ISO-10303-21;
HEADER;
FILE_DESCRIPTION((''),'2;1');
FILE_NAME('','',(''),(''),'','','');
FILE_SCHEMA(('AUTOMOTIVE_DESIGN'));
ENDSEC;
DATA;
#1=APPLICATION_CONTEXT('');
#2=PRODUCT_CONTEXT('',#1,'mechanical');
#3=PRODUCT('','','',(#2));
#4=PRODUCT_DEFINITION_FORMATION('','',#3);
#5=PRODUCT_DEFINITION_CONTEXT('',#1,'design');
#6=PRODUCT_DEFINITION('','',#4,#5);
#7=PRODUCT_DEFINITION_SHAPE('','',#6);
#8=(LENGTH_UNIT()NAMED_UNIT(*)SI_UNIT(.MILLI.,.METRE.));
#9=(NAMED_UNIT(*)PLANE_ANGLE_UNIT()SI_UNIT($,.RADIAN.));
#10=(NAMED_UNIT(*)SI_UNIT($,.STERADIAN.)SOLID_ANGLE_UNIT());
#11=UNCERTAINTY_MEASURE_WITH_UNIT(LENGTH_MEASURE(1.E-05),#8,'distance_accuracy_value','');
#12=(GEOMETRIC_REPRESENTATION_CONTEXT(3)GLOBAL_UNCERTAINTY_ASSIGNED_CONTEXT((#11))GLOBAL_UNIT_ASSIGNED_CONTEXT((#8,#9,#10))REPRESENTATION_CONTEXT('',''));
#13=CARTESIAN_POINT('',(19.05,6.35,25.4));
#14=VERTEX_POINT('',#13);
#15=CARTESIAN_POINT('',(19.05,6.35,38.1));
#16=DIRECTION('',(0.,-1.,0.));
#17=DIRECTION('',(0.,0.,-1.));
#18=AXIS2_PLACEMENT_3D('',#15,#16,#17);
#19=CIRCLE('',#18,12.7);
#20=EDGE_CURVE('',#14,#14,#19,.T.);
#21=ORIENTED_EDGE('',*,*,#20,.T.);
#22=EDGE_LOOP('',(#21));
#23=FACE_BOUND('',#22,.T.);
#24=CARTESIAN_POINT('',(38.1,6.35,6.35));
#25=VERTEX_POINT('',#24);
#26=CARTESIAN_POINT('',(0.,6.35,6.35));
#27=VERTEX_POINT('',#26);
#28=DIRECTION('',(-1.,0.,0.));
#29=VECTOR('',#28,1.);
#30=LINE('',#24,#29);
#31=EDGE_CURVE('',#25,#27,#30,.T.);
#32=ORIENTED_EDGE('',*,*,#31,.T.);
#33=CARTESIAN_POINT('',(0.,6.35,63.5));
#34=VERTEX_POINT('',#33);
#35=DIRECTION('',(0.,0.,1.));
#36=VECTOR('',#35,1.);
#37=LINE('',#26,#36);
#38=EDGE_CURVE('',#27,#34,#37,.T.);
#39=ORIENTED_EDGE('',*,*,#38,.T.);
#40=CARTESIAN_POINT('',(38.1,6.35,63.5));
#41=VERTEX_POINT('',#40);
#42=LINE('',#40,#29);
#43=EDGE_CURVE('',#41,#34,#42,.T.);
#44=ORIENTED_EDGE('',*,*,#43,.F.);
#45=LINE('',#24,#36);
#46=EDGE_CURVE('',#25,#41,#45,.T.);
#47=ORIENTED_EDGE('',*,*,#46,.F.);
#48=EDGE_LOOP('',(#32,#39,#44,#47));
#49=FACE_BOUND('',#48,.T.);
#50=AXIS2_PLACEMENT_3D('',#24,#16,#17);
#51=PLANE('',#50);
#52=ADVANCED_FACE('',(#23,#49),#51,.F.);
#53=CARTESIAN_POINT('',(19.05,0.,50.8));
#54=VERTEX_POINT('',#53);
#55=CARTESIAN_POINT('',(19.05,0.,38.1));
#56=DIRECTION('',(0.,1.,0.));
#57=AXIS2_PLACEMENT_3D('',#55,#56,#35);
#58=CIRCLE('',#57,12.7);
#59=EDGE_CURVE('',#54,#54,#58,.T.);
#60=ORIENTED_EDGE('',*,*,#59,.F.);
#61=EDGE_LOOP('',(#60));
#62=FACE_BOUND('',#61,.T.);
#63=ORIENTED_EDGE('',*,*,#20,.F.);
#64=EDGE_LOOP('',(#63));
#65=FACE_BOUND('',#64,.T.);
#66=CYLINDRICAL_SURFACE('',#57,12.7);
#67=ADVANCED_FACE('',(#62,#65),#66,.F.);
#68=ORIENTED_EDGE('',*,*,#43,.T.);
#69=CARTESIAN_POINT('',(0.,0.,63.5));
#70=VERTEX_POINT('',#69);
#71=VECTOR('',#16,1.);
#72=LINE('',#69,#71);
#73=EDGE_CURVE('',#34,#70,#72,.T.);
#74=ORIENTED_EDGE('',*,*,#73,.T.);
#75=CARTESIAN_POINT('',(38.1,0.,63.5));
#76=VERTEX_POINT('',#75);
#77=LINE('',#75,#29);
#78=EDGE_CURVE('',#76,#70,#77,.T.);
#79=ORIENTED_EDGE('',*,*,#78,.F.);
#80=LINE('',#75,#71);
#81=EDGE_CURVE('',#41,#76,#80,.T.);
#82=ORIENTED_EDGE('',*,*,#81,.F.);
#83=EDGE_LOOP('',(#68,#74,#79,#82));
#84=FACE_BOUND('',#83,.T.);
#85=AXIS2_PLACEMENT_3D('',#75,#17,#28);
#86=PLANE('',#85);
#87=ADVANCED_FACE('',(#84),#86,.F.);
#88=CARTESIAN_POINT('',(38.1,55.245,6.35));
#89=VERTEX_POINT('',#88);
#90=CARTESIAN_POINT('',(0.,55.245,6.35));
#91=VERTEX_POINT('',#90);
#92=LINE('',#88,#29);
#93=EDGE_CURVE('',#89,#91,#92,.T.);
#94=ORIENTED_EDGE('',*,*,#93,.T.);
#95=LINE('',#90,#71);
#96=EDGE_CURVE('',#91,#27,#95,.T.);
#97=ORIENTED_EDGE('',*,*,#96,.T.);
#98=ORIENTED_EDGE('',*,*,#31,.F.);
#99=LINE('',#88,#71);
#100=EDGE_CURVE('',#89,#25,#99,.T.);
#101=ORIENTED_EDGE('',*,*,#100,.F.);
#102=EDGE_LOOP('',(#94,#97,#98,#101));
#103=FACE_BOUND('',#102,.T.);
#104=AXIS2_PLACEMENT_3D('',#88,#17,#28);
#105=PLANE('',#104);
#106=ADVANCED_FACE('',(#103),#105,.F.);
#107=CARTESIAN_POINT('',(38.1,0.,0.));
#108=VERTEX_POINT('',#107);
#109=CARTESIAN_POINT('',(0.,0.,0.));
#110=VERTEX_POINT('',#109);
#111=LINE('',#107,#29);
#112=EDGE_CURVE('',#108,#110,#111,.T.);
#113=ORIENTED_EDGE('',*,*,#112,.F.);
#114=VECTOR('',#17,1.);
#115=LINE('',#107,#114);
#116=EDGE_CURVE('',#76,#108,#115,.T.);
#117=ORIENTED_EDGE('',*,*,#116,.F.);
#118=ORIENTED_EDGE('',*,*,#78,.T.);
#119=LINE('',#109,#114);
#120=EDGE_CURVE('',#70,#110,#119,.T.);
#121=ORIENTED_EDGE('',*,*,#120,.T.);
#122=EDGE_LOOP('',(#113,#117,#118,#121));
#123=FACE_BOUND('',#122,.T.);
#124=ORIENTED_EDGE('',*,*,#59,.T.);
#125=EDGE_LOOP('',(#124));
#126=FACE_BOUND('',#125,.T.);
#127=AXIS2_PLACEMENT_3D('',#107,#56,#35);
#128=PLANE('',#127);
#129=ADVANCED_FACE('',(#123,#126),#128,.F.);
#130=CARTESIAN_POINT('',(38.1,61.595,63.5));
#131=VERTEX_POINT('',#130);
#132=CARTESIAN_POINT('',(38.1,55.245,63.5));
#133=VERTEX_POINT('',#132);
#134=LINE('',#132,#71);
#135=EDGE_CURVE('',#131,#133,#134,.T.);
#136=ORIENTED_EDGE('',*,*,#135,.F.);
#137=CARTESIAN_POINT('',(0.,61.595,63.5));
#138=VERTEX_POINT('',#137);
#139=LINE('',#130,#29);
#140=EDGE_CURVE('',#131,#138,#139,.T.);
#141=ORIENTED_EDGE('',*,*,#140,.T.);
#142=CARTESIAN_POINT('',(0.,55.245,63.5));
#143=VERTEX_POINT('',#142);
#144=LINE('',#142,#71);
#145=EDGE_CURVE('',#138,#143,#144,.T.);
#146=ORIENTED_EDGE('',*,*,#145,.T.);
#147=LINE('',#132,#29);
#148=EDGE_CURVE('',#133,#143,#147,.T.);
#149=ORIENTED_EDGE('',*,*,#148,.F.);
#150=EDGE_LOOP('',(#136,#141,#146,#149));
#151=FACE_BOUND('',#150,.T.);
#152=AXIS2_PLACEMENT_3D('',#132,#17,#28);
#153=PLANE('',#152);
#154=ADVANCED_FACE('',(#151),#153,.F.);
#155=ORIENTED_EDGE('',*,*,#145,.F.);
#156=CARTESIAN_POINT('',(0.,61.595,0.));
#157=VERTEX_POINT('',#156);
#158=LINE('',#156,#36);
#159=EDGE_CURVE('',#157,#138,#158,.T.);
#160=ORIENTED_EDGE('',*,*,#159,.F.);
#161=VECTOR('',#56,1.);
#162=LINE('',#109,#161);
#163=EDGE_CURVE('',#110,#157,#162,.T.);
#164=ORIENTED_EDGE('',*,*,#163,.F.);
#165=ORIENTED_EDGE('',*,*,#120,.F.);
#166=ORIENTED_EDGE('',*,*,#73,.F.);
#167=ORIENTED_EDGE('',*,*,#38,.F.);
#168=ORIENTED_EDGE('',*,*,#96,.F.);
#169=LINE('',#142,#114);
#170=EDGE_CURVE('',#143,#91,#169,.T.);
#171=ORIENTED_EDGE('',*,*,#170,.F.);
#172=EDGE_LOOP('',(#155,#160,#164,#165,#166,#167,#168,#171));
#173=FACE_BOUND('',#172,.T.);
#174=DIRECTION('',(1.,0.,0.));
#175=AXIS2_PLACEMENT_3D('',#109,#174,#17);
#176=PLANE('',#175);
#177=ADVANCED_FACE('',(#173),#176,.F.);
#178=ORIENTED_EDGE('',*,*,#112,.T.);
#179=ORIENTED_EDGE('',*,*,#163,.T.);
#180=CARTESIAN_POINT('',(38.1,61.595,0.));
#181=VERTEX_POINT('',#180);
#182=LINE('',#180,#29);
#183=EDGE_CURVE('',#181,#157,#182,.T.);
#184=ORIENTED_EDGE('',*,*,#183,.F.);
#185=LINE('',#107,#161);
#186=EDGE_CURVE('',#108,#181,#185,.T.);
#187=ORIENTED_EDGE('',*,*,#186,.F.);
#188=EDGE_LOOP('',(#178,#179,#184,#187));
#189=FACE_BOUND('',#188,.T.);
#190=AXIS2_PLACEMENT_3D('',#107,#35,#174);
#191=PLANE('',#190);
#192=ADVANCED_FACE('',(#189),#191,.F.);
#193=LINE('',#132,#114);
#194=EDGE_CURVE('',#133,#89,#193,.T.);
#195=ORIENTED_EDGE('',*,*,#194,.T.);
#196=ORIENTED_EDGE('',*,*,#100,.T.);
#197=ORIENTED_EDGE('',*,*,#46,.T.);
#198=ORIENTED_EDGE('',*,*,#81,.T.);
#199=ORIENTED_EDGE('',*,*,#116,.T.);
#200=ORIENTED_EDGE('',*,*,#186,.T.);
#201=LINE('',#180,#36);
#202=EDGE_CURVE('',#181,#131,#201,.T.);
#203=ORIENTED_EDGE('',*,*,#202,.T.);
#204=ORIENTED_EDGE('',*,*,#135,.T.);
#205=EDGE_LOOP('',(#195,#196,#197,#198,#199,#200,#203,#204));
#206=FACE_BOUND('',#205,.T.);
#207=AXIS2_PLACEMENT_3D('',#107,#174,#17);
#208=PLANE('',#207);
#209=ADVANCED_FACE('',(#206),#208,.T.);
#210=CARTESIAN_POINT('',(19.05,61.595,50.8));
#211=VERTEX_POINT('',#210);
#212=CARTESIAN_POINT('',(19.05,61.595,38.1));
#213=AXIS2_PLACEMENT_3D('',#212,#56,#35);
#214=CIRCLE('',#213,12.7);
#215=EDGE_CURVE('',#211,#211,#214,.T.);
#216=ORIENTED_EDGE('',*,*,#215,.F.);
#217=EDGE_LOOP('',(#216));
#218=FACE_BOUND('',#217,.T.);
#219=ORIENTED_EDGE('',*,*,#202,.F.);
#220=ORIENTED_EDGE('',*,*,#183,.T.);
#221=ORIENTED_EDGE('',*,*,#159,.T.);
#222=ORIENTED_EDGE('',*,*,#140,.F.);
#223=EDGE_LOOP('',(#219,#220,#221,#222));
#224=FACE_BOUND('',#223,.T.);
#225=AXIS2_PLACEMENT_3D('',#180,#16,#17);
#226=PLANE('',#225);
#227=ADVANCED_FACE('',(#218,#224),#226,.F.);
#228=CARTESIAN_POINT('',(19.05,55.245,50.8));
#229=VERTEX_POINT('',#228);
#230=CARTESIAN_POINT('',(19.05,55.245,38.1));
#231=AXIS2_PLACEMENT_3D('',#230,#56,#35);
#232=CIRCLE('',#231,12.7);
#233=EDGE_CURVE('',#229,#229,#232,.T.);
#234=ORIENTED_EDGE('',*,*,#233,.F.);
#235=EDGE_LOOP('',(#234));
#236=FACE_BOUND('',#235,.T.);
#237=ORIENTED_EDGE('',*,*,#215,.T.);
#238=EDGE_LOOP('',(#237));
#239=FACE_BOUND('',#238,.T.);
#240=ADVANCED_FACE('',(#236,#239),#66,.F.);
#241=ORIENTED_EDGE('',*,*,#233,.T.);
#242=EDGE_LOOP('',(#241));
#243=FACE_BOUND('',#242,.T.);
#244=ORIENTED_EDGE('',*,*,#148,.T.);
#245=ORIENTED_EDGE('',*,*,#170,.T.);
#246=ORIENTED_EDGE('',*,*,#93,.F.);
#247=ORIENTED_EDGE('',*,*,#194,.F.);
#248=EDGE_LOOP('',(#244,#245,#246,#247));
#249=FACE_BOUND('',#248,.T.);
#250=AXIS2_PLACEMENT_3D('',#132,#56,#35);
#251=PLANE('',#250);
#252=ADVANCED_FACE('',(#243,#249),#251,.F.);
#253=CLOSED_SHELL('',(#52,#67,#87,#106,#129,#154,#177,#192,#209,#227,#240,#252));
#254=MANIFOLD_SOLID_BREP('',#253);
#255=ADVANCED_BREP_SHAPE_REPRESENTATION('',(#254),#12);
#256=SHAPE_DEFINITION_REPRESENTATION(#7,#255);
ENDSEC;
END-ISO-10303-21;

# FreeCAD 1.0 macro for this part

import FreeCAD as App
import Part
import Sketcher
from FreeCAD import Vector
Q = App.Units.Quantity


def add_polygon(sketch, points):
    """Adds a closed chain of lines whose ends are joined by coincident constraints."""
    first, n = sketch.GeometryCount, len(points)
    for a, b in zip(points, points[1:] + points[:1]):
        sketch.addGeometry(Part.LineSegment(App.Vector(*a, 0), App.Vector(*b, 0)), False)
    for i in range(n):
        sketch.addConstraint(Sketcher.Constraint("Coincident", first + i, 2, first + (i + 1) % n, 1))

doc = App.newDocument("Part")
params = doc.addObject("Spreadsheet::Sheet", "Params")
for row, (alias, value) in enumerate([
    ("sketch1_height", "2.5 in"),
    ("sketch1_width", "0.25 in"),
    ("sketch1_height2", "2.25 in"),
    ("sketch1_width2", "1.925 in"),
    ("pad1_length", "1.5 in"),
    ("sketch2_diameter", "1 in"),
], start=1):
    params.set(f"A{row}", alias)
    params.set(f"B{row}", "=" + value)
    params.setAlias(f"B{row}", alias)

body = doc.addObject("PartDesign::Body", "Body")

sketch1 = body.newObject("Sketcher::SketchObject", "Sketch")
sketch1.AttachmentSupport = (doc.getObject("YZ_Plane"), [""])
sketch1.MapMode = "FlatFace"
add_polygon(sketch1, [(55.245, 63.5), (55.245, 6.35), (6.35, 6.35), (6.35, 63.5), (0, 63.5), (0, 0), (61.595, 0), (61.595, 63.5)])
sketch1.addConstraint(Sketcher.Constraint("Vertical", 0))
sketch1.addConstraint(Sketcher.Constraint("Horizontal", 1))
sketch1.addConstraint(Sketcher.Constraint("Vertical", 2))
sketch1.addConstraint(Sketcher.Constraint("Horizontal", 3))
sketch1.addConstraint(Sketcher.Constraint("Vertical", 4))
sketch1.addConstraint(Sketcher.Constraint("Horizontal", 5))
sketch1.addConstraint(Sketcher.Constraint("Vertical", 6))
sketch1.addConstraint(Sketcher.Constraint("Horizontal", 7))
sketch1.addConstraint(Sketcher.Constraint("Coincident", 4, 2, -1, 1))
sketch1.addConstraint(Sketcher.Constraint("Horizontal", 3, 2, 6, 2))
sketch1.addConstraint(Sketcher.Constraint("Equal", 3, 7))
sketch1.addConstraint(Sketcher.Constraint("DistanceY", 4, 2, 4, 1, Q("2.5 in")))
sketch1.addConstraint(Sketcher.Constraint("DistanceX", 3, 2, 3, 1, Q("0.25 in")))
sketch1.addConstraint(Sketcher.Constraint("DistanceY", 0, 2, 0, 1, Q("2.25 in")))
sketch1.addConstraint(Sketcher.Constraint("DistanceX", 1, 2, 1, 1, Q("1.925 in")))
sketch1.setExpression("Constraints[19]", "Params.sketch1_height")
sketch1.setExpression("Constraints[20]", "Params.sketch1_width")
sketch1.setExpression("Constraints[21]", "Params.sketch1_height2")
sketch1.setExpression("Constraints[22]", "Params.sketch1_width2")
pad1 = body.newObject("PartDesign::Pad", "Pad")
pad1.Profile = sketch1
pad1.setExpression("Length", "Params.pad1_length")

sketch2 = body.newObject("Sketcher::SketchObject", "Sketch001")
sketch2.AttachmentSupport = (doc.getObject("XZ_Plane"), [""])
sketch2.MapMode = "FlatFace"
sketch2.AttachmentOffset = App.Placement(Vector(0, 0, -2.425 * 25.4), App.Rotation())
sketch2.addGeometry(Part.Circle(Vector(19.05, 38.1, 0), Vector(0, 0, 1), 12.7), False)
sketch2.addConstraint(Sketcher.Constraint("Diameter", 0, Q("1 in")))
sketch2.addConstraint(Sketcher.Constraint("DistanceY", -1, 1, 0, 3, Q("1.5 in")))
sketch2.addConstraint(Sketcher.Constraint("DistanceX", -1, 1, 0, 3, Q("0.75 in")))
sketch2.setExpression("Constraints[0]", "Params.sketch2_diameter")
pocket1 = body.newObject("PartDesign::Pocket", "Pocket")
pocket1.Profile = sketch2
pocket1.Type = "ThroughAll"
pocket1.Reversed = True

doc.recompute()
